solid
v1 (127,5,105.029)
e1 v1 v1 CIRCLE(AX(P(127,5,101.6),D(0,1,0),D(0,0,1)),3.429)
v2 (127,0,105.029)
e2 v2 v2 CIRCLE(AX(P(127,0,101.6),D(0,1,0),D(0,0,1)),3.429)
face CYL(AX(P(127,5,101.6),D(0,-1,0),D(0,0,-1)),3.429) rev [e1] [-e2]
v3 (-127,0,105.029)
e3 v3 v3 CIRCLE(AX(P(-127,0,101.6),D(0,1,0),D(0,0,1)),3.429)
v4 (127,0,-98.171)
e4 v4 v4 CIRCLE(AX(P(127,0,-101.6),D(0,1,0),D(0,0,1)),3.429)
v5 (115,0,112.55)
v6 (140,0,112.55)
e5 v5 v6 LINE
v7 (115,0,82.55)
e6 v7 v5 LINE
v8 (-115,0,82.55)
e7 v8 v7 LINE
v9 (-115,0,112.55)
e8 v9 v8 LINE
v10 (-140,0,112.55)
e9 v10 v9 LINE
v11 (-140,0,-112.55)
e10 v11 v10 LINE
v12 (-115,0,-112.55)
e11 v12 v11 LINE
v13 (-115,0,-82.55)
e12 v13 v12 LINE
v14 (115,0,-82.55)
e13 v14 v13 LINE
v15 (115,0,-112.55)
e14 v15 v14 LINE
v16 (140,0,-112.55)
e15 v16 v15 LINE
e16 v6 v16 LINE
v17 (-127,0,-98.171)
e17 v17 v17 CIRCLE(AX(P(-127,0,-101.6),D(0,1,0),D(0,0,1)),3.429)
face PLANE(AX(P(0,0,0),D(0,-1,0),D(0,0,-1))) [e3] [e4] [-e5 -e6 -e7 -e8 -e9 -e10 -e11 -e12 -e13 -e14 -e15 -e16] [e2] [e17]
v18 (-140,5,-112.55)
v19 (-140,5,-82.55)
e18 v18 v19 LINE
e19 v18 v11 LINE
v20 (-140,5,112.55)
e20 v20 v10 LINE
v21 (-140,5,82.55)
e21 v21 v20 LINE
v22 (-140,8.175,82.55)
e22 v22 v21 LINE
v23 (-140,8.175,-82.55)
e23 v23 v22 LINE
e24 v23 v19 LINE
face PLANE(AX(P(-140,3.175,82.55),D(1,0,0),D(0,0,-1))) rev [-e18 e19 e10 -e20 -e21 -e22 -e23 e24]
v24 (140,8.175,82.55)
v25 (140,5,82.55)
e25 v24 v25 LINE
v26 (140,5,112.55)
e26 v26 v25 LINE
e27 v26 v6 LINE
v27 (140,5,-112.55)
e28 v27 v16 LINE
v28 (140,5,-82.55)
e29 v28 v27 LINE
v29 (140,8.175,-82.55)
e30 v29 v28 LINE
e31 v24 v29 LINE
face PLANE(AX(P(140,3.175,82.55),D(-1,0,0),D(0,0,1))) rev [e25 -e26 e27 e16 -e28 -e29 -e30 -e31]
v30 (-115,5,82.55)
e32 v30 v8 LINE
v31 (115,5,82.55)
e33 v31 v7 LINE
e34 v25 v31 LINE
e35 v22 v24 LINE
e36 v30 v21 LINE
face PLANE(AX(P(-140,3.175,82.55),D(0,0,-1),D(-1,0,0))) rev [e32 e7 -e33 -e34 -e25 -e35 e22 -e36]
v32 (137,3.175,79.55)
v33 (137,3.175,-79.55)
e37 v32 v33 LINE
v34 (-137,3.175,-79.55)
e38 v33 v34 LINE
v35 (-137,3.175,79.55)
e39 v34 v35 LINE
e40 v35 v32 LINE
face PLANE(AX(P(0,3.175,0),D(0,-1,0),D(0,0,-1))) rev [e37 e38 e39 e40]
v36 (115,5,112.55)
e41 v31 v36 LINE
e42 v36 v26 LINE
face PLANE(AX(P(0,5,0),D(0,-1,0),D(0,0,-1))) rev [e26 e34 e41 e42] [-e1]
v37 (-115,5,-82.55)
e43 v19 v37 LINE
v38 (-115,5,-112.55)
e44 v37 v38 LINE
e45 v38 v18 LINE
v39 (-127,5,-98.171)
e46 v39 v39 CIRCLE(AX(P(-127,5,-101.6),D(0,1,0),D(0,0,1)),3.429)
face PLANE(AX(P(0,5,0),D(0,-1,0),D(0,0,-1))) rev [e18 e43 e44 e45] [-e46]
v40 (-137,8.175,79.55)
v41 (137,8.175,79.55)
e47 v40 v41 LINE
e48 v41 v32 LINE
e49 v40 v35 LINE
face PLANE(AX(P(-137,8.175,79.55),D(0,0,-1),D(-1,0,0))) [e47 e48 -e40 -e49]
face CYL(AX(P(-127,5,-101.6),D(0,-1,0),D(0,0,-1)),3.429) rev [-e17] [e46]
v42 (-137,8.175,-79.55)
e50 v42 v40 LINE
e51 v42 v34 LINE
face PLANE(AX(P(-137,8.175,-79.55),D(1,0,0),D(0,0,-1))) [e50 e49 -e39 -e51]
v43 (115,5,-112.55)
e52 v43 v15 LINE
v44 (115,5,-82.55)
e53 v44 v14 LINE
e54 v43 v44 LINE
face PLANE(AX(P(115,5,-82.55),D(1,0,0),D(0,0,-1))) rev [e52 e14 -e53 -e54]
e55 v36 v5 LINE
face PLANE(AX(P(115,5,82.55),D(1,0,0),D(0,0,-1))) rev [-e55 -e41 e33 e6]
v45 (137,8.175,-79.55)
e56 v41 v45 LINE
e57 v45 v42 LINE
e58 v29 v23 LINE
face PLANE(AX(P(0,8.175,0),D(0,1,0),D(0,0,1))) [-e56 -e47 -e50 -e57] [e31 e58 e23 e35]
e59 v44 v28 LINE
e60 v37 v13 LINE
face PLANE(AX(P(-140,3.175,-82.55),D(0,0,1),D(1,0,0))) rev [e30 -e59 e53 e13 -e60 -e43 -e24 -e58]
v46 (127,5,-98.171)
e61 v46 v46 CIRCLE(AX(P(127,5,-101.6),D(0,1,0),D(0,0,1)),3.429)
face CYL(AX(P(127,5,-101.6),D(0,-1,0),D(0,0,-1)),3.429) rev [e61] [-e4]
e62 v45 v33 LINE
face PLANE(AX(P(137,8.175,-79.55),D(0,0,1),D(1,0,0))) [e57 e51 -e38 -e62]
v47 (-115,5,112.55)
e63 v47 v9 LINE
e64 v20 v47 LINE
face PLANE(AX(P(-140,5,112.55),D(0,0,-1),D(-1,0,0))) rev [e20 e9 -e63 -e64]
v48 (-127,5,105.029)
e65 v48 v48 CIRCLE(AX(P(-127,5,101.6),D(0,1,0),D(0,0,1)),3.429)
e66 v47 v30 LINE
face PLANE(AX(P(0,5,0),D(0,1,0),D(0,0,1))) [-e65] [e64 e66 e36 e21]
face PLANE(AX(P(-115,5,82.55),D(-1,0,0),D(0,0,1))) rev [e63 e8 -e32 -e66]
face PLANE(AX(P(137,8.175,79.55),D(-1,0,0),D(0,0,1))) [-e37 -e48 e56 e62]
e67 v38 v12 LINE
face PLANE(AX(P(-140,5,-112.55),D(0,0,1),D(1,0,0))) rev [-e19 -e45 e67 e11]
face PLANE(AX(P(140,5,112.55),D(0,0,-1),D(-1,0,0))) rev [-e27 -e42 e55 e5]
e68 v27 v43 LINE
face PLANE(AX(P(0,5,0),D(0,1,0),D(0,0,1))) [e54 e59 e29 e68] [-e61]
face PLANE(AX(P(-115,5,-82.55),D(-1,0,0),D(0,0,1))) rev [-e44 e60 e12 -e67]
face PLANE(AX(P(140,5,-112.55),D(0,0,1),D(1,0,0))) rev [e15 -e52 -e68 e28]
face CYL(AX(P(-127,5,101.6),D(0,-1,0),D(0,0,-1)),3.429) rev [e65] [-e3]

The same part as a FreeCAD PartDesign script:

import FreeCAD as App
import Part
import Sketcher

doc = App.newDocument("Part")
params = doc.addObject("Spreadsheet::Sheet", "Params")
for row, (alias, value) in enumerate([
    ("sketch1_width", "280 mm"),
    ("sketch1_height", "165.1 mm"),
    ("pad1_length", "3.175 mm"),
    ("sketch2_width", "280 mm"),
    ("sketch2_width2", "274 mm"),
    ("sketch2_height", "165.1 mm"),
    ("sketch2_height2", "159.1 mm"),
    ("pad2_length", "5 mm"),
    ("sketch3_width", "25 mm"),
    ("sketch3_height", "30 mm"),
    ("pad3_length", "5 mm"),
], start=1):
    params.set(f"A{row}", alias)
    params.set(f"B{row}", "=" + value)
    params.setAlias(f"B{row}", alias)

body = doc.addObject("PartDesign::Body", "Body")

# Sketch on XZ plane
sketch1 = body.newObject("Sketcher::SketchObject", "Sketch")
sketch1.AttachmentSupport = (doc.getObject("XZ_Plane"), [""])
sketch1.MapMode = "FlatFace"
sketch1.addGeometry([
    Part.LineSegment(App.Vector(-140, -82.55, 0), App.Vector(-140, 82.55, 0)),
    Part.LineSegment(App.Vector(-140, 82.55, 0), App.Vector(140, 82.55, 0)),
    Part.LineSegment(App.Vector(140, 82.55, 0), App.Vector(140, -82.55, 0)),
    Part.LineSegment(App.Vector(140, -82.55, 0), App.Vector(-140, -82.55, 0)),
], False)
sketch1.addConstraint([
    Sketcher.Constraint("Coincident", 0, 2, 1, 1),
    Sketcher.Constraint("Coincident", 1, 2, 2, 1),
    Sketcher.Constraint("Coincident", 2, 2, 3, 1),
    Sketcher.Constraint("Coincident", 3, 2, 0, 1),
    Sketcher.Constraint("Vertical", 0),
    Sketcher.Constraint("Horizontal", 1),
    Sketcher.Constraint("Vertical", 2),
    Sketcher.Constraint("Horizontal", 3),
    Sketcher.Constraint("Symmetric", 0, 2, 2, 2, -1, 1),
    Sketcher.Constraint("DistanceX", 1, 1, 1, 2, 280.0),
    Sketcher.Constraint("DistanceY", 0, 1, 0, 2, 165.1),
])
sketch1.setExpression("Constraints[9]", "Params.sketch1_width")
sketch1.setExpression("Constraints[10]", "Params.sketch1_height")
pad1 = body.newObject("PartDesign::Pad", "Pad")
pad1.Profile = sketch1
pad1.setExpression("Length", "Params.pad1_length")
pad1.Reversed = True

# Sketch on XZ plane
sketch2 = body.newObject("Sketcher::SketchObject", "Sketch001")
sketch2.AttachmentSupport = (doc.getObject("XZ_Plane"), [""])
sketch2.MapMode = "FlatFace"
sketch2.AttachmentOffset = App.Placement(App.Vector(0, 0, -3.175), App.Rotation())
sketch2.addGeometry([
    Part.LineSegment(App.Vector(-140, -82.55, 0), App.Vector(-140, 82.55, 0)),  # 0
    Part.LineSegment(App.Vector(-140, 82.55, 0), App.Vector(140, 82.55, 0)),  # 1
    Part.LineSegment(App.Vector(140, 82.55, 0), App.Vector(140, -82.55, 0)),  # 2
    Part.LineSegment(App.Vector(140, -82.55, 0), App.Vector(-140, -82.55, 0)),  # 3
    Part.LineSegment(App.Vector(137, 79.55, 0), App.Vector(-137, 79.55, 0)),  # 4
    Part.LineSegment(App.Vector(-137, 79.55, 0), App.Vector(-137, -79.55, 0)),  # 5
    Part.LineSegment(App.Vector(-137, -79.55, 0), App.Vector(137, -79.55, 0)),  # 6
    Part.LineSegment(App.Vector(137, -79.55, 0), App.Vector(137, 79.55, 0)),  # 7
], False)
sketch2.addConstraint([
    Sketcher.Constraint("Coincident", 0, 2, 1, 1),
    Sketcher.Constraint("Coincident", 1, 2, 2, 1),
    Sketcher.Constraint("Coincident", 2, 2, 3, 1),
    Sketcher.Constraint("Coincident", 3, 2, 0, 1),
    Sketcher.Constraint("Coincident", 4, 2, 5, 1),
    Sketcher.Constraint("Coincident", 5, 2, 6, 1),
    Sketcher.Constraint("Coincident", 6, 2, 7, 1),
    Sketcher.Constraint("Coincident", 7, 2, 4, 1),
    Sketcher.Constraint("Vertical", 0),
    Sketcher.Constraint("Horizontal", 1),
    Sketcher.Constraint("Vertical", 2),
    Sketcher.Constraint("Horizontal", 3),
    Sketcher.Constraint("Horizontal", 4),
    Sketcher.Constraint("Vertical", 5),
    Sketcher.Constraint("Horizontal", 6),
    Sketcher.Constraint("Vertical", 7),
    Sketcher.Constraint("Symmetric", 0, 2, 2, 2, -1, 1),
    Sketcher.Constraint("Symmetric", 4, 2, 6, 2, -1, 1),
    Sketcher.Constraint("DistanceX", 1, 1, 1, 2, 280.0),
    Sketcher.Constraint("DistanceX", 4, 2, 4, 1, 274.0),
    Sketcher.Constraint("DistanceY", 0, 1, 0, 2, 165.1),
    Sketcher.Constraint("DistanceY", 5, 2, 5, 1, 159.1),
])
sketch2.setExpression("Constraints[18]", "Params.sketch2_width")
sketch2.setExpression("Constraints[19]", "Params.sketch2_width2")
sketch2.setExpression("Constraints[20]", "Params.sketch2_height")
sketch2.setExpression("Constraints[21]", "Params.sketch2_height2")
pad2 = body.newObject("PartDesign::Pad", "Pad001")
pad2.Profile = sketch2
pad2.setExpression("Length", "Params.pad2_length")
pad2.Reversed = True

# Sketch on XZ plane
sketch3 = body.newObject("Sketcher::SketchObject", "Sketch002")
sketch3.AttachmentSupport = (doc.getObject("XZ_Plane"), [""])
sketch3.MapMode = "FlatFace"
sketch3.addGeometry([
    Part.LineSegment(App.Vector(-140, -112.55, 0), App.Vector(-140, -82.55, 0)),  # 0
    Part.LineSegment(App.Vector(-140, -82.55, 0), App.Vector(-115, -82.55, 0)),  # 1
    Part.LineSegment(App.Vector(-115, -82.55, 0), App.Vector(-115, -112.55, 0)),  # 2
    Part.LineSegment(App.Vector(-115, -112.55, 0), App.Vector(-140, -112.55, 0)),  # 3
    Part.Circle(App.Vector(-127, -101.6, 0), App.Vector(0, 0, 1), 3.429),  # 4
    Part.LineSegment(App.Vector(115, -112.55, 0), App.Vector(115, -82.55, 0)),  # 5
    Part.LineSegment(App.Vector(115, -82.55, 0), App.Vector(140, -82.55, 0)),  # 6
    Part.LineSegment(App.Vector(140, -82.55, 0), App.Vector(140, -112.55, 0)),  # 7
    Part.LineSegment(App.Vector(140, -112.55, 0), App.Vector(115, -112.55, 0)),  # 8
    Part.Circle(App.Vector(127, -101.6, 0), App.Vector(0, 0, 1), 3.429),  # 9
    Part.LineSegment(App.Vector(-140, 82.55, 0), App.Vector(-140, 112.55, 0)),  # 10
    Part.LineSegment(App.Vector(-140, 112.55, 0), App.Vector(-115, 112.55, 0)),  # 11
    Part.LineSegment(App.Vector(-115, 112.55, 0), App.Vector(-115, 82.55, 0)),  # 12
    Part.LineSegment(App.Vector(-115, 82.55, 0), App.Vector(-140, 82.55, 0)),  # 13
    Part.Circle(App.Vector(-127, 101.6, 0), App.Vector(0, 0, 1), 3.429),  # 14
    Part.LineSegment(App.Vector(115, 82.55, 0), App.Vector(115, 112.55, 0)),  # 15
    Part.LineSegment(App.Vector(115, 112.55, 0), App.Vector(140, 112.55, 0)),  # 16
    Part.LineSegment(App.Vector(140, 112.55, 0), App.Vector(140, 82.55, 0)),  # 17
    Part.LineSegment(App.Vector(140, 82.55, 0), App.Vector(115, 82.55, 0)),  # 18
    Part.Circle(App.Vector(127, 101.6, 0), App.Vector(0, 0, 1), 3.429),  # 19
], False)
sketch3.addConstraint([
    Sketcher.Constraint("Coincident", 0, 2, 1, 1),
    Sketcher.Constraint("Coincident", 1, 2, 2, 1),
    Sketcher.Constraint("Coincident", 2, 2, 3, 1),
    Sketcher.Constraint("Coincident", 3, 2, 0, 1),
    Sketcher.Constraint("Coincident", 5, 2, 6, 1),
    Sketcher.Constraint("Coincident", 6, 2, 7, 1),
    Sketcher.Constraint("Coincident", 7, 2, 8, 1),
    Sketcher.Constraint("Coincident", 8, 2, 5, 1),
    Sketcher.Constraint("Coincident", 10, 2, 11, 1),
    Sketcher.Constraint("Coincident", 11, 2, 12, 1),
    Sketcher.Constraint("Coincident", 12, 2, 13, 1),
    Sketcher.Constraint("Coincident", 13, 2, 10, 1),
    Sketcher.Constraint("Coincident", 15, 2, 16, 1),
    Sketcher.Constraint("Coincident", 16, 2, 17, 1),
    Sketcher.Constraint("Coincident", 17, 2, 18, 1),
    Sketcher.Constraint("Coincident", 18, 2, 15, 1),
    Sketcher.Constraint("Vertical", 0),
    Sketcher.Constraint("Horizontal", 1),
    Sketcher.Constraint("Vertical", 2),
    Sketcher.Constraint("Horizontal", 3),
    Sketcher.Constraint("Vertical", 5),
    Sketcher.Constraint("Horizontal", 6),
    Sketcher.Constraint("Vertical", 7),
    Sketcher.Constraint("Horizontal", 8),
    Sketcher.Constraint("Vertical", 10),
    Sketcher.Constraint("Horizontal", 11),
    Sketcher.Constraint("Vertical", 12),
    Sketcher.Constraint("Horizontal", 13),
    Sketcher.Constraint("Vertical", 15),
    Sketcher.Constraint("Horizontal", 16),
    Sketcher.Constraint("Vertical", 17),
    Sketcher.Constraint("Horizontal", 18),
    Sketcher.Constraint("Equal", 4, 9),
    Sketcher.Constraint("Equal", 9, 14),
    Sketcher.Constraint("Equal", 14, 19),
    Sketcher.Constraint("Symmetric", 9, 3, 14, 3, -1, 1),
    Sketcher.Constraint("Symmetric", 4, 3, 19, 3, -1, 1),
    Sketcher.Constraint("Symmetric", 7, 2, 10, 2, -1, 1),
    Sketcher.Constraint("Symmetric", 5, 2, 12, 2, -1, 1),
    Sketcher.Constraint("Symmetric", 2, 2, 15, 2, -1, 1),
    Sketcher.Constraint("Symmetric", 0, 2, 17, 2, -1, 1),
    Sketcher.Constraint("Symmetric", 4, 3, 9, 3, -2),
    Sketcher.Constraint("Symmetric", 1, 2, 5, 2, -2),
    Sketcher.Constraint("Symmetric", 3, 2, 7, 2, -2),
    Sketcher.Constraint("DistanceX", 1, 1, 1, 2, 25.0),
    Sketcher.Constraint("DistanceY", 0, 1, 0, 2, 30.0),
    Sketcher.Constraint("Diameter", 4, 6.858),
    Sketcher.Constraint("DistanceX", 4, 3, -1, 1, 127.0),
    Sketcher.Constraint("DistanceX", 0, 2, -1, 1, 140.0),
    Sketcher.Constraint("DistanceY", 4, 3, -1, 1, 101.6),
    Sketcher.Constraint("DistanceY", 0, 2, 10, 2, 195.1),
])
sketch3.setExpression("Constraints[44]", "Params.sketch3_width")
sketch3.setExpression("Constraints[45]", "Params.sketch3_height")
pad3 = body.newObject("PartDesign::Pad", "Pad002")
pad3.Profile = sketch3
pad3.setExpression("Length", "Params.pad3_length")
pad3.Reversed = True

doc.recompute()
